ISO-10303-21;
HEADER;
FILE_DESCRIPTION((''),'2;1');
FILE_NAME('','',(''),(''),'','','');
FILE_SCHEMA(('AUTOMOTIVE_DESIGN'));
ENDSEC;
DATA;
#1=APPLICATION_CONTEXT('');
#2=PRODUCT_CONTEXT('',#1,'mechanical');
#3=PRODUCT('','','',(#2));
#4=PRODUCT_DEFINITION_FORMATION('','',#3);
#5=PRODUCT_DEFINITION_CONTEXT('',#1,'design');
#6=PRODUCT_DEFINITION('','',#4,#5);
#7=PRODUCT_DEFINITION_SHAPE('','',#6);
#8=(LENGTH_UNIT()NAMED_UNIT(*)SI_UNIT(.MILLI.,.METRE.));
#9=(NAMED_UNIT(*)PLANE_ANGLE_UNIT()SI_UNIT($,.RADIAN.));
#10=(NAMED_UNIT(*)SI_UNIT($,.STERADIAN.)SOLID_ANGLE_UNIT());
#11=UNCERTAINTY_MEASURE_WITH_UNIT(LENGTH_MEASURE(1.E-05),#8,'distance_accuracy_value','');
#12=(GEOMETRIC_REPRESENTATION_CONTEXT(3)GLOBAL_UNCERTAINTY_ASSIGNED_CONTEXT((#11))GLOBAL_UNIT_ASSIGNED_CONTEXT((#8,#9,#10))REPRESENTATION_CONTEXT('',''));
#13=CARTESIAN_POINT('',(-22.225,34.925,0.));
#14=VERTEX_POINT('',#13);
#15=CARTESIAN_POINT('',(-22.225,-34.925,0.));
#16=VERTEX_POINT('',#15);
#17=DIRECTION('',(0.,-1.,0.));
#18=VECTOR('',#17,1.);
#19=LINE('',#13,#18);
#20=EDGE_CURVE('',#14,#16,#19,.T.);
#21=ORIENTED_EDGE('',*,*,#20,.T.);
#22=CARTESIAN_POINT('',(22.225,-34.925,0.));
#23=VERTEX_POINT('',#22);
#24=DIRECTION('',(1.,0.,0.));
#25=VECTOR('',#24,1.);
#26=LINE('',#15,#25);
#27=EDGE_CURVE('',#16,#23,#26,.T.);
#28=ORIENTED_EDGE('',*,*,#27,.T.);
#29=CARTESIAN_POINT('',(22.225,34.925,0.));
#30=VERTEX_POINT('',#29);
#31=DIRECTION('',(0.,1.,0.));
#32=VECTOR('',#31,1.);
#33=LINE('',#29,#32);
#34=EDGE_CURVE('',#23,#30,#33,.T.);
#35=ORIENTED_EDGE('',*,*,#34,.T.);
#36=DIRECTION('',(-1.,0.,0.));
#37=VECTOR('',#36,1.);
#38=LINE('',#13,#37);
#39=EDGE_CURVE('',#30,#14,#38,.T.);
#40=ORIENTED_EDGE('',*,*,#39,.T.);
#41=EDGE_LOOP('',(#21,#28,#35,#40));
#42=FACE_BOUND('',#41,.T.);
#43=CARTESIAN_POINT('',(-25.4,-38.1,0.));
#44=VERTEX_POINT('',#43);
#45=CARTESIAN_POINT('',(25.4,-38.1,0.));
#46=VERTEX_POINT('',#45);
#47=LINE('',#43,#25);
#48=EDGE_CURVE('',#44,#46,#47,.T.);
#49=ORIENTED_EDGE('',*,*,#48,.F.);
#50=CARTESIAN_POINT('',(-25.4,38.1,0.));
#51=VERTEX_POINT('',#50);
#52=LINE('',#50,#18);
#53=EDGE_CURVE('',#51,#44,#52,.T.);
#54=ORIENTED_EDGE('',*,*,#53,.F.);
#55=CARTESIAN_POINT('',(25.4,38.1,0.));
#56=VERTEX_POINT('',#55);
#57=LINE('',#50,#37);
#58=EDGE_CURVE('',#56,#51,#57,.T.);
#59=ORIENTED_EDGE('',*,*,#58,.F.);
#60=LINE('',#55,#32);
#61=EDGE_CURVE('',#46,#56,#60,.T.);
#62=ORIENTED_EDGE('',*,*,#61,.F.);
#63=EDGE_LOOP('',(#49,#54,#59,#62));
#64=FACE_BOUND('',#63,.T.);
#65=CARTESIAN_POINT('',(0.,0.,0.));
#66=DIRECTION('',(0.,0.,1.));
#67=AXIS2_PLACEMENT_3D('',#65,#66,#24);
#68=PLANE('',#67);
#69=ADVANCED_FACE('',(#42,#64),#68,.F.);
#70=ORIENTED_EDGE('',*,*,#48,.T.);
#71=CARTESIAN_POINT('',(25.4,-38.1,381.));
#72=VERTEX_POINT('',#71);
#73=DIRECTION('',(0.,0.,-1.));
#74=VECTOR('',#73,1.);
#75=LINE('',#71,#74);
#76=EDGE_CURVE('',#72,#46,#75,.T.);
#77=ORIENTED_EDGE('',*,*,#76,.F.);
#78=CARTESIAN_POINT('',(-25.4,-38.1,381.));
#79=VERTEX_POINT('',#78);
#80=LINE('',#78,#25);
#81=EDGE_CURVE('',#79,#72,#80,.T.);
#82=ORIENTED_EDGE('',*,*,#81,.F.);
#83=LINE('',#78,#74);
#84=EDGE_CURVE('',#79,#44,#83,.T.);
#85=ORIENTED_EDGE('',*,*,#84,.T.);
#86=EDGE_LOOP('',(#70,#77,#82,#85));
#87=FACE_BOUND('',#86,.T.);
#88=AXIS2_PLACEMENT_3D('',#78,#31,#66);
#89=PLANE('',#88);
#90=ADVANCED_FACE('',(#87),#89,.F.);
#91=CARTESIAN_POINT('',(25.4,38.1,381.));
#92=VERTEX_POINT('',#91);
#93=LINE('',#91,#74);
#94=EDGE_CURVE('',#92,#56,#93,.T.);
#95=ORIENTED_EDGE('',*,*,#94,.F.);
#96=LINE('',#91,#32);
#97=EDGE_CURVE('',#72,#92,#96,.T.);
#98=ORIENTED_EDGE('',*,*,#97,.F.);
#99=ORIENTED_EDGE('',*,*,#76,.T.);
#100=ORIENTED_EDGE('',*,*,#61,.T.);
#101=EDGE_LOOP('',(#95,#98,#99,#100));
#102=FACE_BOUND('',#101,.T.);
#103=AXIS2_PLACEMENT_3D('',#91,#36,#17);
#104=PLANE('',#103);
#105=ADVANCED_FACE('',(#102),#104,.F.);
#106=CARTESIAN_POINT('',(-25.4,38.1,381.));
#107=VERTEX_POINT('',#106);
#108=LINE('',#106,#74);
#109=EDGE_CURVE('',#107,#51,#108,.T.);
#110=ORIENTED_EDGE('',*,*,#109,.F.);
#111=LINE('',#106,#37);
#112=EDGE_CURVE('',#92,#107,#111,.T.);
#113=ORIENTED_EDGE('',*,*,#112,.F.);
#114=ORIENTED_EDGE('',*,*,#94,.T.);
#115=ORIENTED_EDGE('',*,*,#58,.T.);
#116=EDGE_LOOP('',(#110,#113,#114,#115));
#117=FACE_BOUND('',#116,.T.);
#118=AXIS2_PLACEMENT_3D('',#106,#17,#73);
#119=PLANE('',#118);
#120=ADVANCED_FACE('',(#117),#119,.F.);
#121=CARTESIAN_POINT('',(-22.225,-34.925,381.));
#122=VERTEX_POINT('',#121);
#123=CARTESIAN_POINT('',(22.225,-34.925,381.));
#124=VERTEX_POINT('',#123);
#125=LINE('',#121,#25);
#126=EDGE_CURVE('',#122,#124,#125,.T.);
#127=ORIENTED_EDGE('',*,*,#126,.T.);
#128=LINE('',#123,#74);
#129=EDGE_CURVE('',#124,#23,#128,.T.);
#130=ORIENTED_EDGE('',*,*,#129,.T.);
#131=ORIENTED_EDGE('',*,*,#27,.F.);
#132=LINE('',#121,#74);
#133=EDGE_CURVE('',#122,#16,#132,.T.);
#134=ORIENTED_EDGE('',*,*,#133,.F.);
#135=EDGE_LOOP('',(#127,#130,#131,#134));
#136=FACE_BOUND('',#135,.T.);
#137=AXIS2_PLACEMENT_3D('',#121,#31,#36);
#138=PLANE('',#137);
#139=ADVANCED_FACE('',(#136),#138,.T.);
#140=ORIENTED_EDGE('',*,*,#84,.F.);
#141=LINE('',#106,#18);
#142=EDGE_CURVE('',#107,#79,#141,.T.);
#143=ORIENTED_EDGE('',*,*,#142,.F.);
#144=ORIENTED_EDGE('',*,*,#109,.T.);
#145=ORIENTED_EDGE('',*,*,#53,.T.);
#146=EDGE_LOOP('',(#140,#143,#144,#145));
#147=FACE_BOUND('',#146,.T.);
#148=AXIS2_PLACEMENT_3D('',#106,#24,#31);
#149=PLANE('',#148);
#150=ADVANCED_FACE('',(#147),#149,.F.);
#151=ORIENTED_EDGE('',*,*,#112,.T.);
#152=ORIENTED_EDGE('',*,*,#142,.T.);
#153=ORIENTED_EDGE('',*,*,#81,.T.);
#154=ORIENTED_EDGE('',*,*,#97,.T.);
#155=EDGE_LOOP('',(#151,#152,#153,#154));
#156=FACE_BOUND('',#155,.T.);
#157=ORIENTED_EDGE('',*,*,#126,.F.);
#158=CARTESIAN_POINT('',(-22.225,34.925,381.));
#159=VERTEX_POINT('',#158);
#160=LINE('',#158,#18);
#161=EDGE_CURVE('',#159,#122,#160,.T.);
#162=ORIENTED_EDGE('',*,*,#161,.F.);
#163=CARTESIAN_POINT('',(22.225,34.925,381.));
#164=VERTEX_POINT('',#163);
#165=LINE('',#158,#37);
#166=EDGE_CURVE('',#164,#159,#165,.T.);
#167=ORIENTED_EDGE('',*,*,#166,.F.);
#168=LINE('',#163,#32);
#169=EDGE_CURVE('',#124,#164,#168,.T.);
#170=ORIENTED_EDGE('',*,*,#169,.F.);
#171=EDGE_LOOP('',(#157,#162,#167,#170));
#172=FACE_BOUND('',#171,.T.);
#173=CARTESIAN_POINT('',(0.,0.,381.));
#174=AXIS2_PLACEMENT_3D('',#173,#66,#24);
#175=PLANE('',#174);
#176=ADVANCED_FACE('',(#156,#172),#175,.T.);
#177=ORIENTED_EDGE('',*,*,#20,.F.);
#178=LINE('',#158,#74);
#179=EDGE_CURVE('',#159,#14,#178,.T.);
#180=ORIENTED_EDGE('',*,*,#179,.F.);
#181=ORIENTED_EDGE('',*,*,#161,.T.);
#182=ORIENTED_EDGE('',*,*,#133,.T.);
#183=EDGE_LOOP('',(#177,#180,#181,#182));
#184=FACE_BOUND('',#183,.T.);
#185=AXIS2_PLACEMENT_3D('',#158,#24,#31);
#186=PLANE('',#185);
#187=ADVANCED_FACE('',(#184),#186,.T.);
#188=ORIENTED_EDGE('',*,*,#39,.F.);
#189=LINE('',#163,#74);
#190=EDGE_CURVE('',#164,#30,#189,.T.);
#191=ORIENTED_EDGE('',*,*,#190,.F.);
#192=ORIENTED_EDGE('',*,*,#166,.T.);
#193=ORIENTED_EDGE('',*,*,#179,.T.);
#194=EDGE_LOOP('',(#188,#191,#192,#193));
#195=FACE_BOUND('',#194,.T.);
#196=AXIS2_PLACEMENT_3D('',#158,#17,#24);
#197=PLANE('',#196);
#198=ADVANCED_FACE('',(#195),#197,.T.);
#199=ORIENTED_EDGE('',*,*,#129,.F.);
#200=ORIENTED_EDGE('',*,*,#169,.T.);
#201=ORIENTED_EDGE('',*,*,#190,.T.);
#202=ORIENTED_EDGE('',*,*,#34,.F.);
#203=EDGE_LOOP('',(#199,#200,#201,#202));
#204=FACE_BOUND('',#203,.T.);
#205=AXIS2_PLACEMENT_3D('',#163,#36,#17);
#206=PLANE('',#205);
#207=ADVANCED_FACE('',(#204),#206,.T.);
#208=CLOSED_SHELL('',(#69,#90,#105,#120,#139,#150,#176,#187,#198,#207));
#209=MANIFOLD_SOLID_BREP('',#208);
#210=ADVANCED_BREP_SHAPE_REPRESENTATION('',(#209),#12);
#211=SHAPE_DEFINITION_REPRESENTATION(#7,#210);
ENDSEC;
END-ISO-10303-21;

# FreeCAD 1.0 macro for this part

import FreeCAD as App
import Part
import Sketcher
Q = App.Units.Quantity


def add_polygon(sketch, points):
    """Adds a closed chain of lines whose ends are joined by coincident constraints."""
    first, n = sketch.GeometryCount, len(points)
    for a, b in zip(points, points[1:] + points[:1]):
        sketch.addGeometry(Part.LineSegment(App.Vector(*a, 0), App.Vector(*b, 0)), False)
    for i in range(n):
        sketch.addConstraint(Sketcher.Constraint("Coincident", first + i, 2, first + (i + 1) % n, 1))

doc = App.newDocument("Part")
body = doc.addObject("PartDesign::Body", "Body")

# Sketch on XY plane
sketch1 = body.newObject("Sketcher::SketchObject", "Sketch")
sketch1.AttachmentSupport = (doc.getObject("XY_Plane"), [""])
sketch1.MapMode = "FlatFace"
add_polygon(sketch1, [(-25, 38), (-25, -38), (25, -38), (25, 38)])  # lines 0-3
add_polygon(sketch1, [(22, -35), (-22, -35), (-22, 35), (22, 35)])  # lines 4-7
sketch1.addConstraint(Sketcher.Constraint("Vertical", 0))
sketch1.addConstraint(Sketcher.Constraint("Horizontal", 1))
sketch1.addConstraint(Sketcher.Constraint("Vertical", 2))
sketch1.addConstraint(Sketcher.Constraint("Horizontal", 3))
sketch1.addConstraint(Sketcher.Constraint("Horizontal", 4))
sketch1.addConstraint(Sketcher.Constraint("Vertical", 5))
sketch1.addConstraint(Sketcher.Constraint("Horizontal", 6))
sketch1.addConstraint(Sketcher.Constraint("Vertical", 7))
sketch1.addConstraint(Sketcher.Constraint("Symmetric", 0, 2, 2, 2, -1, 1))
sketch1.addConstraint(Sketcher.Constraint("Symmetric", 4, 2, 6, 2, -1, 1))
sketch1.addConstraint(Sketcher.Constraint("DistanceX", 1, 1, 1, 2, Q("2 in")))
sketch1.addConstraint(Sketcher.Constraint("DistanceY", 0, 2, 0, 1, Q("3 in")))
sketch1.addConstraint(Sketcher.Constraint("DistanceX", 4, 2, 4, 1, Q("1.75 in")))
sketch1.addConstraint(Sketcher.Constraint("DistanceY", 5, 1, 5, 2, Q("2.75 in")))
pad1 = body.newObject("PartDesign::Pad", "Pad")
pad1.Profile = sketch1
pad1.Length = Q("15 in")

doc.recompute()
